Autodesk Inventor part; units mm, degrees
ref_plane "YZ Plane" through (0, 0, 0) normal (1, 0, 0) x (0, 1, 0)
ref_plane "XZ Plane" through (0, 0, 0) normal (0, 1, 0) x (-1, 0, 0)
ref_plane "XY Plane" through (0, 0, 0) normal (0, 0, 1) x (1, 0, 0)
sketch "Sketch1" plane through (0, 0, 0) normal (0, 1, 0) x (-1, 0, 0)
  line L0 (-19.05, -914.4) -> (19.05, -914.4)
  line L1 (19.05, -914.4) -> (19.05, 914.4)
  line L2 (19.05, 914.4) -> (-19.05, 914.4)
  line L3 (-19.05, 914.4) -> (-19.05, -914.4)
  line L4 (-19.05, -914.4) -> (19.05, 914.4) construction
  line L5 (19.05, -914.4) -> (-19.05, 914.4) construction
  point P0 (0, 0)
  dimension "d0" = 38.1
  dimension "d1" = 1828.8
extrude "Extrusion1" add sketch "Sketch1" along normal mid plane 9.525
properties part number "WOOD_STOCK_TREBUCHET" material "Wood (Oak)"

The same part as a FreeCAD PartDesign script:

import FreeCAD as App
import Part
import Sketcher

V = App.Vector
Q = App.Units.Quantity


def add_polygon(sketch, points):
    """Adds a closed chain of lines whose ends are joined by coincident constraints."""
    first, n = sketch.GeometryCount, len(points)
    for a, b in zip(points, points[1:] + points[:1]):
        sketch.addGeometry(Part.LineSegment(App.Vector(*a, 0), App.Vector(*b, 0)), False)
    for i in range(n):
        sketch.addConstraint(Sketcher.Constraint("Coincident", first + i, 2, first + (i + 1) % n, 1))

doc = App.newDocument("Part")
params = doc.addObject("Spreadsheet::Sheet", "Params")
for row, (alias, value) in enumerate([
    ("sketch1_height", "72 in"),
    ("sketch1_width", "1.5 in"),
    ("pad1_length", "0.375 in"),
], start=1):
    params.set(f"A{row}", alias)
    params.set(f"B{row}", "=" + value)
    params.setAlias(f"B{row}", alias)

body = doc.addObject("PartDesign::Body", "Body")

# Sketch on XZ plane
sketch1 = body.newObject("Sketcher::SketchObject", "Sketch")
sketch1.AttachmentSupport = (doc.getObject("XZ_Plane"), [""])
sketch1.MapMode = "FlatFace"
add_polygon(sketch1, [(19, 914), (19, -914), (-19, -914), (-19, 914)])  # lines 0-3
sketch1.addConstraint([
    Sketcher.Constraint("Vertical", 0),
    Sketcher.Constraint("Horizontal", 1),
    Sketcher.Constraint("Vertical", 2),
    Sketcher.Constraint("Horizontal", 3),
    Sketcher.Constraint("Symmetric", 0, 2, 2, 2, -1, 1),
    Sketcher.Constraint("DistanceY", 0, 2, 0, 1, Q("72 in")),
    Sketcher.Constraint("DistanceX", 1, 2, 1, 1, Q("1.5 in")),
])
sketch1.setExpression("Constraints[9]", "Params.sketch1_height")
sketch1.setExpression("Constraints[10]", "Params.sketch1_width")
pad1 = body.newObject("PartDesign::Pad", "Pad")
pad1.Profile = sketch1
pad1.setExpression("Length", "Params.pad1_length")
pad1.Midplane = True

doc.recompute()
